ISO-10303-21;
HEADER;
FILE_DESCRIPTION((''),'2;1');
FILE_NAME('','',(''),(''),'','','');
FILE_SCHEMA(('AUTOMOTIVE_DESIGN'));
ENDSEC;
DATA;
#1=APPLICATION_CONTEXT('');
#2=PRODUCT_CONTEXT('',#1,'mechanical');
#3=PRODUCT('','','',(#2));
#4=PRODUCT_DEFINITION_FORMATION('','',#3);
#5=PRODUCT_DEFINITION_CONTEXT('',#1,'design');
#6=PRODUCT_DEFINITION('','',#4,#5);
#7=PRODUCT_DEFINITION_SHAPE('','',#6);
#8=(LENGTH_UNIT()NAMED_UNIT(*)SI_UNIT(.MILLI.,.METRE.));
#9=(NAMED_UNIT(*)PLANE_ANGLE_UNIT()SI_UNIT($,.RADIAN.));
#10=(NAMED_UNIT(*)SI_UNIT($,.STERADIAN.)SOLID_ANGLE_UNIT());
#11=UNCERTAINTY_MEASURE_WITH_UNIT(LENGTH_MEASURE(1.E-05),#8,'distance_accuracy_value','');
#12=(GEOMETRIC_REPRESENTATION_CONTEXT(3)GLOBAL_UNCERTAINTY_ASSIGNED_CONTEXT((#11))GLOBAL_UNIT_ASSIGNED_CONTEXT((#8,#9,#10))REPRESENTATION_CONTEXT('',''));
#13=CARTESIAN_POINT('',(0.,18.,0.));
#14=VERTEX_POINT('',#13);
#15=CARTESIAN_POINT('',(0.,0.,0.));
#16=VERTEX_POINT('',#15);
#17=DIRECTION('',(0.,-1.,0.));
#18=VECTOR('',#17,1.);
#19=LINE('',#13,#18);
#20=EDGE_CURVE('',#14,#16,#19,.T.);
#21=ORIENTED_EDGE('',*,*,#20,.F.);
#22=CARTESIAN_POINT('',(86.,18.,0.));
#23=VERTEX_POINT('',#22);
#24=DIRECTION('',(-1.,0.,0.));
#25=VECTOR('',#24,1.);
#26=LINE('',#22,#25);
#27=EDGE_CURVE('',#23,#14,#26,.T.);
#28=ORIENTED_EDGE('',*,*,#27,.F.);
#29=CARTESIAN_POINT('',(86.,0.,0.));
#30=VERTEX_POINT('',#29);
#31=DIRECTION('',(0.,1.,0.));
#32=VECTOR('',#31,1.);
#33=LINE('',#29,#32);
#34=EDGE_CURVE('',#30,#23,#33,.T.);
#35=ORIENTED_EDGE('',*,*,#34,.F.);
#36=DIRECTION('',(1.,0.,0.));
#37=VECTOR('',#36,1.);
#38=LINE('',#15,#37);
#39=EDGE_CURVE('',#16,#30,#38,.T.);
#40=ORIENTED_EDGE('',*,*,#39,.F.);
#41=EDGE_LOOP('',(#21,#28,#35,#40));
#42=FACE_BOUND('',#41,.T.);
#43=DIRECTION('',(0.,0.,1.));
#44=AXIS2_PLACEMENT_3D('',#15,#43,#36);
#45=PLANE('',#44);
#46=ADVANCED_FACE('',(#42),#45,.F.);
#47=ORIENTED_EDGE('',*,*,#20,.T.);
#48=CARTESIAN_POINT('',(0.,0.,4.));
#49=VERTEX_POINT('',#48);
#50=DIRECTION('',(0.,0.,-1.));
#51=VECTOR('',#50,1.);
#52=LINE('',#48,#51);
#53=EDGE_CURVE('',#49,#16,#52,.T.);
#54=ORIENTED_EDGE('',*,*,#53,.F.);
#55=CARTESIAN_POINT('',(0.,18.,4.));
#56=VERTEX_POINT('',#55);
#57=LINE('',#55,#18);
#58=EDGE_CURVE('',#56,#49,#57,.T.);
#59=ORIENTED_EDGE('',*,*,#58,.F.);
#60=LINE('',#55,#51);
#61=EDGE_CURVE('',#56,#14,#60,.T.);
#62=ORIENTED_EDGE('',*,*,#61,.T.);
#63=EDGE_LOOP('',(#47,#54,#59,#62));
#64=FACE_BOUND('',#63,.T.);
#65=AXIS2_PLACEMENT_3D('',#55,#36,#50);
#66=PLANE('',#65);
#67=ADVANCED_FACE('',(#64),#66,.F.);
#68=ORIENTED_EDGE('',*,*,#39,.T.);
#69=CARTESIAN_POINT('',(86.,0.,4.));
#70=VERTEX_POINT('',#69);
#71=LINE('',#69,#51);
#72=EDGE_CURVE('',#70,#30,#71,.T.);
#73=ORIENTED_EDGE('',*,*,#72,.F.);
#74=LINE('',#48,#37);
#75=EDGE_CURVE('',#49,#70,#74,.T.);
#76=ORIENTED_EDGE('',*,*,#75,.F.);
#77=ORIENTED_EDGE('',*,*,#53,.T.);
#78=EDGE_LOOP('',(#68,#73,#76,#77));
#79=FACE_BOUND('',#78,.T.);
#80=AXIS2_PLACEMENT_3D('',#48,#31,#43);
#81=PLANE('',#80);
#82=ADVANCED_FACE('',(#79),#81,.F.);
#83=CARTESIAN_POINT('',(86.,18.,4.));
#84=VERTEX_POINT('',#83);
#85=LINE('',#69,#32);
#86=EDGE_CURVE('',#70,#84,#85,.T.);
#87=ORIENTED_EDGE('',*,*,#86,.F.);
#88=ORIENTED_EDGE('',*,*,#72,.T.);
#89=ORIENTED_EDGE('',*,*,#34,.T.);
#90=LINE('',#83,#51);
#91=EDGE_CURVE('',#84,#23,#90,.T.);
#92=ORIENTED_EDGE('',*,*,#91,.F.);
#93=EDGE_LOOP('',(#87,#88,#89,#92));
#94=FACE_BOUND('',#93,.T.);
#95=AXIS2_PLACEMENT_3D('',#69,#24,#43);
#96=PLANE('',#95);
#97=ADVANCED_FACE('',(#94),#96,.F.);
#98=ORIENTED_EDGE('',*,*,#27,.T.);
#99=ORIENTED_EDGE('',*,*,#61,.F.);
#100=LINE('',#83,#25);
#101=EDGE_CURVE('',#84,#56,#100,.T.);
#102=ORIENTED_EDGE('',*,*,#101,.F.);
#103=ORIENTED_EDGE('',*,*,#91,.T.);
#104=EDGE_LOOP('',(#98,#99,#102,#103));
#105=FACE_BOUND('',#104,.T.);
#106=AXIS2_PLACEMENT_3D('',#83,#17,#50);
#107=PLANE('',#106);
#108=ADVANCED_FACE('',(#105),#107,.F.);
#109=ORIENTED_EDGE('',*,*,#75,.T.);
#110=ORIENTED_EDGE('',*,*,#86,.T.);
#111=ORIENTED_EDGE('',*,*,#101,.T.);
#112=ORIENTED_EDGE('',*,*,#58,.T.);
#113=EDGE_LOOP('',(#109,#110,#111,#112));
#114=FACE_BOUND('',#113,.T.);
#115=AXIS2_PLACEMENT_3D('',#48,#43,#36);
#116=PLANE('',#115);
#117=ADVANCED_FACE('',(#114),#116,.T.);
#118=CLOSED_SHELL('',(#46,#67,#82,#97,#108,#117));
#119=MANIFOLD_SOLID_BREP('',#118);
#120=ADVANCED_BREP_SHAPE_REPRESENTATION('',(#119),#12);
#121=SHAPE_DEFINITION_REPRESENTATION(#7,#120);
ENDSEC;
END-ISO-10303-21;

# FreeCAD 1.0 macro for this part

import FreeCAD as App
import Part
import Sketcher
from FreeCAD import Vector

doc = App.newDocument("Part")
params = doc.addObject("Spreadsheet::Sheet", "Params")
for row, (alias, value) in enumerate([
    ("sketch1_width", "86 mm"),
    ("sketch1_height", "18 mm"),
    ("pad1_length", "4 mm"),
], start=1):
    params.set(f"A{row}", alias)
    params.set(f"B{row}", "=" + value)
    params.setAlias(f"B{row}", alias)

body = doc.addObject("PartDesign::Body", "Body")

sketch1 = body.newObject("Sketcher::SketchObject", "Sketch")
sketch1.AttachmentSupport = (doc.getObject("XY_Plane"), [""])
sketch1.MapMode = "FlatFace"
sketch1.addGeometry([
    Part.LineSegment(Vector(0, 18, 0), Vector(0, 0, 0)),
    Part.LineSegment(Vector(0, 0, 0), Vector(86, 0, 0)),
    Part.LineSegment(Vector(86, 0, 0), Vector(86, 18, 0)),
    Part.LineSegment(Vector(86, 18, 0), Vector(0, 18, 0)),
], False)
sketch1.addConstraint([
    Sketcher.Constraint("Coincident", 0, 2, 1, 1),
    Sketcher.Constraint("Coincident", 1, 2, 2, 1),
    Sketcher.Constraint("Coincident", 2, 2, 3, 1),
    Sketcher.Constraint("Coincident", 3, 2, 0, 1),
    Sketcher.Constraint("Vertical", 0),
    Sketcher.Constraint("Horizontal", 1),
    Sketcher.Constraint("Vertical", 2),
    Sketcher.Constraint("Horizontal", 3),
    Sketcher.Constraint("Coincident", 0, 2, -1, 1),
    Sketcher.Constraint("DistanceX", 1, 1, 1, 2, 86.0),
    Sketcher.Constraint("DistanceY", 0, 2, 0, 1, 18.0),
])
sketch1.setExpression("Constraints[9]", "Params.sketch1_width")
sketch1.setExpression("Constraints[10]", "Params.sketch1_height")
pad1 = body.newObject("PartDesign::Pad", "Pad")
pad1.Profile = sketch1
pad1.setExpression("Length", "Params.pad1_length")

doc.recompute()
